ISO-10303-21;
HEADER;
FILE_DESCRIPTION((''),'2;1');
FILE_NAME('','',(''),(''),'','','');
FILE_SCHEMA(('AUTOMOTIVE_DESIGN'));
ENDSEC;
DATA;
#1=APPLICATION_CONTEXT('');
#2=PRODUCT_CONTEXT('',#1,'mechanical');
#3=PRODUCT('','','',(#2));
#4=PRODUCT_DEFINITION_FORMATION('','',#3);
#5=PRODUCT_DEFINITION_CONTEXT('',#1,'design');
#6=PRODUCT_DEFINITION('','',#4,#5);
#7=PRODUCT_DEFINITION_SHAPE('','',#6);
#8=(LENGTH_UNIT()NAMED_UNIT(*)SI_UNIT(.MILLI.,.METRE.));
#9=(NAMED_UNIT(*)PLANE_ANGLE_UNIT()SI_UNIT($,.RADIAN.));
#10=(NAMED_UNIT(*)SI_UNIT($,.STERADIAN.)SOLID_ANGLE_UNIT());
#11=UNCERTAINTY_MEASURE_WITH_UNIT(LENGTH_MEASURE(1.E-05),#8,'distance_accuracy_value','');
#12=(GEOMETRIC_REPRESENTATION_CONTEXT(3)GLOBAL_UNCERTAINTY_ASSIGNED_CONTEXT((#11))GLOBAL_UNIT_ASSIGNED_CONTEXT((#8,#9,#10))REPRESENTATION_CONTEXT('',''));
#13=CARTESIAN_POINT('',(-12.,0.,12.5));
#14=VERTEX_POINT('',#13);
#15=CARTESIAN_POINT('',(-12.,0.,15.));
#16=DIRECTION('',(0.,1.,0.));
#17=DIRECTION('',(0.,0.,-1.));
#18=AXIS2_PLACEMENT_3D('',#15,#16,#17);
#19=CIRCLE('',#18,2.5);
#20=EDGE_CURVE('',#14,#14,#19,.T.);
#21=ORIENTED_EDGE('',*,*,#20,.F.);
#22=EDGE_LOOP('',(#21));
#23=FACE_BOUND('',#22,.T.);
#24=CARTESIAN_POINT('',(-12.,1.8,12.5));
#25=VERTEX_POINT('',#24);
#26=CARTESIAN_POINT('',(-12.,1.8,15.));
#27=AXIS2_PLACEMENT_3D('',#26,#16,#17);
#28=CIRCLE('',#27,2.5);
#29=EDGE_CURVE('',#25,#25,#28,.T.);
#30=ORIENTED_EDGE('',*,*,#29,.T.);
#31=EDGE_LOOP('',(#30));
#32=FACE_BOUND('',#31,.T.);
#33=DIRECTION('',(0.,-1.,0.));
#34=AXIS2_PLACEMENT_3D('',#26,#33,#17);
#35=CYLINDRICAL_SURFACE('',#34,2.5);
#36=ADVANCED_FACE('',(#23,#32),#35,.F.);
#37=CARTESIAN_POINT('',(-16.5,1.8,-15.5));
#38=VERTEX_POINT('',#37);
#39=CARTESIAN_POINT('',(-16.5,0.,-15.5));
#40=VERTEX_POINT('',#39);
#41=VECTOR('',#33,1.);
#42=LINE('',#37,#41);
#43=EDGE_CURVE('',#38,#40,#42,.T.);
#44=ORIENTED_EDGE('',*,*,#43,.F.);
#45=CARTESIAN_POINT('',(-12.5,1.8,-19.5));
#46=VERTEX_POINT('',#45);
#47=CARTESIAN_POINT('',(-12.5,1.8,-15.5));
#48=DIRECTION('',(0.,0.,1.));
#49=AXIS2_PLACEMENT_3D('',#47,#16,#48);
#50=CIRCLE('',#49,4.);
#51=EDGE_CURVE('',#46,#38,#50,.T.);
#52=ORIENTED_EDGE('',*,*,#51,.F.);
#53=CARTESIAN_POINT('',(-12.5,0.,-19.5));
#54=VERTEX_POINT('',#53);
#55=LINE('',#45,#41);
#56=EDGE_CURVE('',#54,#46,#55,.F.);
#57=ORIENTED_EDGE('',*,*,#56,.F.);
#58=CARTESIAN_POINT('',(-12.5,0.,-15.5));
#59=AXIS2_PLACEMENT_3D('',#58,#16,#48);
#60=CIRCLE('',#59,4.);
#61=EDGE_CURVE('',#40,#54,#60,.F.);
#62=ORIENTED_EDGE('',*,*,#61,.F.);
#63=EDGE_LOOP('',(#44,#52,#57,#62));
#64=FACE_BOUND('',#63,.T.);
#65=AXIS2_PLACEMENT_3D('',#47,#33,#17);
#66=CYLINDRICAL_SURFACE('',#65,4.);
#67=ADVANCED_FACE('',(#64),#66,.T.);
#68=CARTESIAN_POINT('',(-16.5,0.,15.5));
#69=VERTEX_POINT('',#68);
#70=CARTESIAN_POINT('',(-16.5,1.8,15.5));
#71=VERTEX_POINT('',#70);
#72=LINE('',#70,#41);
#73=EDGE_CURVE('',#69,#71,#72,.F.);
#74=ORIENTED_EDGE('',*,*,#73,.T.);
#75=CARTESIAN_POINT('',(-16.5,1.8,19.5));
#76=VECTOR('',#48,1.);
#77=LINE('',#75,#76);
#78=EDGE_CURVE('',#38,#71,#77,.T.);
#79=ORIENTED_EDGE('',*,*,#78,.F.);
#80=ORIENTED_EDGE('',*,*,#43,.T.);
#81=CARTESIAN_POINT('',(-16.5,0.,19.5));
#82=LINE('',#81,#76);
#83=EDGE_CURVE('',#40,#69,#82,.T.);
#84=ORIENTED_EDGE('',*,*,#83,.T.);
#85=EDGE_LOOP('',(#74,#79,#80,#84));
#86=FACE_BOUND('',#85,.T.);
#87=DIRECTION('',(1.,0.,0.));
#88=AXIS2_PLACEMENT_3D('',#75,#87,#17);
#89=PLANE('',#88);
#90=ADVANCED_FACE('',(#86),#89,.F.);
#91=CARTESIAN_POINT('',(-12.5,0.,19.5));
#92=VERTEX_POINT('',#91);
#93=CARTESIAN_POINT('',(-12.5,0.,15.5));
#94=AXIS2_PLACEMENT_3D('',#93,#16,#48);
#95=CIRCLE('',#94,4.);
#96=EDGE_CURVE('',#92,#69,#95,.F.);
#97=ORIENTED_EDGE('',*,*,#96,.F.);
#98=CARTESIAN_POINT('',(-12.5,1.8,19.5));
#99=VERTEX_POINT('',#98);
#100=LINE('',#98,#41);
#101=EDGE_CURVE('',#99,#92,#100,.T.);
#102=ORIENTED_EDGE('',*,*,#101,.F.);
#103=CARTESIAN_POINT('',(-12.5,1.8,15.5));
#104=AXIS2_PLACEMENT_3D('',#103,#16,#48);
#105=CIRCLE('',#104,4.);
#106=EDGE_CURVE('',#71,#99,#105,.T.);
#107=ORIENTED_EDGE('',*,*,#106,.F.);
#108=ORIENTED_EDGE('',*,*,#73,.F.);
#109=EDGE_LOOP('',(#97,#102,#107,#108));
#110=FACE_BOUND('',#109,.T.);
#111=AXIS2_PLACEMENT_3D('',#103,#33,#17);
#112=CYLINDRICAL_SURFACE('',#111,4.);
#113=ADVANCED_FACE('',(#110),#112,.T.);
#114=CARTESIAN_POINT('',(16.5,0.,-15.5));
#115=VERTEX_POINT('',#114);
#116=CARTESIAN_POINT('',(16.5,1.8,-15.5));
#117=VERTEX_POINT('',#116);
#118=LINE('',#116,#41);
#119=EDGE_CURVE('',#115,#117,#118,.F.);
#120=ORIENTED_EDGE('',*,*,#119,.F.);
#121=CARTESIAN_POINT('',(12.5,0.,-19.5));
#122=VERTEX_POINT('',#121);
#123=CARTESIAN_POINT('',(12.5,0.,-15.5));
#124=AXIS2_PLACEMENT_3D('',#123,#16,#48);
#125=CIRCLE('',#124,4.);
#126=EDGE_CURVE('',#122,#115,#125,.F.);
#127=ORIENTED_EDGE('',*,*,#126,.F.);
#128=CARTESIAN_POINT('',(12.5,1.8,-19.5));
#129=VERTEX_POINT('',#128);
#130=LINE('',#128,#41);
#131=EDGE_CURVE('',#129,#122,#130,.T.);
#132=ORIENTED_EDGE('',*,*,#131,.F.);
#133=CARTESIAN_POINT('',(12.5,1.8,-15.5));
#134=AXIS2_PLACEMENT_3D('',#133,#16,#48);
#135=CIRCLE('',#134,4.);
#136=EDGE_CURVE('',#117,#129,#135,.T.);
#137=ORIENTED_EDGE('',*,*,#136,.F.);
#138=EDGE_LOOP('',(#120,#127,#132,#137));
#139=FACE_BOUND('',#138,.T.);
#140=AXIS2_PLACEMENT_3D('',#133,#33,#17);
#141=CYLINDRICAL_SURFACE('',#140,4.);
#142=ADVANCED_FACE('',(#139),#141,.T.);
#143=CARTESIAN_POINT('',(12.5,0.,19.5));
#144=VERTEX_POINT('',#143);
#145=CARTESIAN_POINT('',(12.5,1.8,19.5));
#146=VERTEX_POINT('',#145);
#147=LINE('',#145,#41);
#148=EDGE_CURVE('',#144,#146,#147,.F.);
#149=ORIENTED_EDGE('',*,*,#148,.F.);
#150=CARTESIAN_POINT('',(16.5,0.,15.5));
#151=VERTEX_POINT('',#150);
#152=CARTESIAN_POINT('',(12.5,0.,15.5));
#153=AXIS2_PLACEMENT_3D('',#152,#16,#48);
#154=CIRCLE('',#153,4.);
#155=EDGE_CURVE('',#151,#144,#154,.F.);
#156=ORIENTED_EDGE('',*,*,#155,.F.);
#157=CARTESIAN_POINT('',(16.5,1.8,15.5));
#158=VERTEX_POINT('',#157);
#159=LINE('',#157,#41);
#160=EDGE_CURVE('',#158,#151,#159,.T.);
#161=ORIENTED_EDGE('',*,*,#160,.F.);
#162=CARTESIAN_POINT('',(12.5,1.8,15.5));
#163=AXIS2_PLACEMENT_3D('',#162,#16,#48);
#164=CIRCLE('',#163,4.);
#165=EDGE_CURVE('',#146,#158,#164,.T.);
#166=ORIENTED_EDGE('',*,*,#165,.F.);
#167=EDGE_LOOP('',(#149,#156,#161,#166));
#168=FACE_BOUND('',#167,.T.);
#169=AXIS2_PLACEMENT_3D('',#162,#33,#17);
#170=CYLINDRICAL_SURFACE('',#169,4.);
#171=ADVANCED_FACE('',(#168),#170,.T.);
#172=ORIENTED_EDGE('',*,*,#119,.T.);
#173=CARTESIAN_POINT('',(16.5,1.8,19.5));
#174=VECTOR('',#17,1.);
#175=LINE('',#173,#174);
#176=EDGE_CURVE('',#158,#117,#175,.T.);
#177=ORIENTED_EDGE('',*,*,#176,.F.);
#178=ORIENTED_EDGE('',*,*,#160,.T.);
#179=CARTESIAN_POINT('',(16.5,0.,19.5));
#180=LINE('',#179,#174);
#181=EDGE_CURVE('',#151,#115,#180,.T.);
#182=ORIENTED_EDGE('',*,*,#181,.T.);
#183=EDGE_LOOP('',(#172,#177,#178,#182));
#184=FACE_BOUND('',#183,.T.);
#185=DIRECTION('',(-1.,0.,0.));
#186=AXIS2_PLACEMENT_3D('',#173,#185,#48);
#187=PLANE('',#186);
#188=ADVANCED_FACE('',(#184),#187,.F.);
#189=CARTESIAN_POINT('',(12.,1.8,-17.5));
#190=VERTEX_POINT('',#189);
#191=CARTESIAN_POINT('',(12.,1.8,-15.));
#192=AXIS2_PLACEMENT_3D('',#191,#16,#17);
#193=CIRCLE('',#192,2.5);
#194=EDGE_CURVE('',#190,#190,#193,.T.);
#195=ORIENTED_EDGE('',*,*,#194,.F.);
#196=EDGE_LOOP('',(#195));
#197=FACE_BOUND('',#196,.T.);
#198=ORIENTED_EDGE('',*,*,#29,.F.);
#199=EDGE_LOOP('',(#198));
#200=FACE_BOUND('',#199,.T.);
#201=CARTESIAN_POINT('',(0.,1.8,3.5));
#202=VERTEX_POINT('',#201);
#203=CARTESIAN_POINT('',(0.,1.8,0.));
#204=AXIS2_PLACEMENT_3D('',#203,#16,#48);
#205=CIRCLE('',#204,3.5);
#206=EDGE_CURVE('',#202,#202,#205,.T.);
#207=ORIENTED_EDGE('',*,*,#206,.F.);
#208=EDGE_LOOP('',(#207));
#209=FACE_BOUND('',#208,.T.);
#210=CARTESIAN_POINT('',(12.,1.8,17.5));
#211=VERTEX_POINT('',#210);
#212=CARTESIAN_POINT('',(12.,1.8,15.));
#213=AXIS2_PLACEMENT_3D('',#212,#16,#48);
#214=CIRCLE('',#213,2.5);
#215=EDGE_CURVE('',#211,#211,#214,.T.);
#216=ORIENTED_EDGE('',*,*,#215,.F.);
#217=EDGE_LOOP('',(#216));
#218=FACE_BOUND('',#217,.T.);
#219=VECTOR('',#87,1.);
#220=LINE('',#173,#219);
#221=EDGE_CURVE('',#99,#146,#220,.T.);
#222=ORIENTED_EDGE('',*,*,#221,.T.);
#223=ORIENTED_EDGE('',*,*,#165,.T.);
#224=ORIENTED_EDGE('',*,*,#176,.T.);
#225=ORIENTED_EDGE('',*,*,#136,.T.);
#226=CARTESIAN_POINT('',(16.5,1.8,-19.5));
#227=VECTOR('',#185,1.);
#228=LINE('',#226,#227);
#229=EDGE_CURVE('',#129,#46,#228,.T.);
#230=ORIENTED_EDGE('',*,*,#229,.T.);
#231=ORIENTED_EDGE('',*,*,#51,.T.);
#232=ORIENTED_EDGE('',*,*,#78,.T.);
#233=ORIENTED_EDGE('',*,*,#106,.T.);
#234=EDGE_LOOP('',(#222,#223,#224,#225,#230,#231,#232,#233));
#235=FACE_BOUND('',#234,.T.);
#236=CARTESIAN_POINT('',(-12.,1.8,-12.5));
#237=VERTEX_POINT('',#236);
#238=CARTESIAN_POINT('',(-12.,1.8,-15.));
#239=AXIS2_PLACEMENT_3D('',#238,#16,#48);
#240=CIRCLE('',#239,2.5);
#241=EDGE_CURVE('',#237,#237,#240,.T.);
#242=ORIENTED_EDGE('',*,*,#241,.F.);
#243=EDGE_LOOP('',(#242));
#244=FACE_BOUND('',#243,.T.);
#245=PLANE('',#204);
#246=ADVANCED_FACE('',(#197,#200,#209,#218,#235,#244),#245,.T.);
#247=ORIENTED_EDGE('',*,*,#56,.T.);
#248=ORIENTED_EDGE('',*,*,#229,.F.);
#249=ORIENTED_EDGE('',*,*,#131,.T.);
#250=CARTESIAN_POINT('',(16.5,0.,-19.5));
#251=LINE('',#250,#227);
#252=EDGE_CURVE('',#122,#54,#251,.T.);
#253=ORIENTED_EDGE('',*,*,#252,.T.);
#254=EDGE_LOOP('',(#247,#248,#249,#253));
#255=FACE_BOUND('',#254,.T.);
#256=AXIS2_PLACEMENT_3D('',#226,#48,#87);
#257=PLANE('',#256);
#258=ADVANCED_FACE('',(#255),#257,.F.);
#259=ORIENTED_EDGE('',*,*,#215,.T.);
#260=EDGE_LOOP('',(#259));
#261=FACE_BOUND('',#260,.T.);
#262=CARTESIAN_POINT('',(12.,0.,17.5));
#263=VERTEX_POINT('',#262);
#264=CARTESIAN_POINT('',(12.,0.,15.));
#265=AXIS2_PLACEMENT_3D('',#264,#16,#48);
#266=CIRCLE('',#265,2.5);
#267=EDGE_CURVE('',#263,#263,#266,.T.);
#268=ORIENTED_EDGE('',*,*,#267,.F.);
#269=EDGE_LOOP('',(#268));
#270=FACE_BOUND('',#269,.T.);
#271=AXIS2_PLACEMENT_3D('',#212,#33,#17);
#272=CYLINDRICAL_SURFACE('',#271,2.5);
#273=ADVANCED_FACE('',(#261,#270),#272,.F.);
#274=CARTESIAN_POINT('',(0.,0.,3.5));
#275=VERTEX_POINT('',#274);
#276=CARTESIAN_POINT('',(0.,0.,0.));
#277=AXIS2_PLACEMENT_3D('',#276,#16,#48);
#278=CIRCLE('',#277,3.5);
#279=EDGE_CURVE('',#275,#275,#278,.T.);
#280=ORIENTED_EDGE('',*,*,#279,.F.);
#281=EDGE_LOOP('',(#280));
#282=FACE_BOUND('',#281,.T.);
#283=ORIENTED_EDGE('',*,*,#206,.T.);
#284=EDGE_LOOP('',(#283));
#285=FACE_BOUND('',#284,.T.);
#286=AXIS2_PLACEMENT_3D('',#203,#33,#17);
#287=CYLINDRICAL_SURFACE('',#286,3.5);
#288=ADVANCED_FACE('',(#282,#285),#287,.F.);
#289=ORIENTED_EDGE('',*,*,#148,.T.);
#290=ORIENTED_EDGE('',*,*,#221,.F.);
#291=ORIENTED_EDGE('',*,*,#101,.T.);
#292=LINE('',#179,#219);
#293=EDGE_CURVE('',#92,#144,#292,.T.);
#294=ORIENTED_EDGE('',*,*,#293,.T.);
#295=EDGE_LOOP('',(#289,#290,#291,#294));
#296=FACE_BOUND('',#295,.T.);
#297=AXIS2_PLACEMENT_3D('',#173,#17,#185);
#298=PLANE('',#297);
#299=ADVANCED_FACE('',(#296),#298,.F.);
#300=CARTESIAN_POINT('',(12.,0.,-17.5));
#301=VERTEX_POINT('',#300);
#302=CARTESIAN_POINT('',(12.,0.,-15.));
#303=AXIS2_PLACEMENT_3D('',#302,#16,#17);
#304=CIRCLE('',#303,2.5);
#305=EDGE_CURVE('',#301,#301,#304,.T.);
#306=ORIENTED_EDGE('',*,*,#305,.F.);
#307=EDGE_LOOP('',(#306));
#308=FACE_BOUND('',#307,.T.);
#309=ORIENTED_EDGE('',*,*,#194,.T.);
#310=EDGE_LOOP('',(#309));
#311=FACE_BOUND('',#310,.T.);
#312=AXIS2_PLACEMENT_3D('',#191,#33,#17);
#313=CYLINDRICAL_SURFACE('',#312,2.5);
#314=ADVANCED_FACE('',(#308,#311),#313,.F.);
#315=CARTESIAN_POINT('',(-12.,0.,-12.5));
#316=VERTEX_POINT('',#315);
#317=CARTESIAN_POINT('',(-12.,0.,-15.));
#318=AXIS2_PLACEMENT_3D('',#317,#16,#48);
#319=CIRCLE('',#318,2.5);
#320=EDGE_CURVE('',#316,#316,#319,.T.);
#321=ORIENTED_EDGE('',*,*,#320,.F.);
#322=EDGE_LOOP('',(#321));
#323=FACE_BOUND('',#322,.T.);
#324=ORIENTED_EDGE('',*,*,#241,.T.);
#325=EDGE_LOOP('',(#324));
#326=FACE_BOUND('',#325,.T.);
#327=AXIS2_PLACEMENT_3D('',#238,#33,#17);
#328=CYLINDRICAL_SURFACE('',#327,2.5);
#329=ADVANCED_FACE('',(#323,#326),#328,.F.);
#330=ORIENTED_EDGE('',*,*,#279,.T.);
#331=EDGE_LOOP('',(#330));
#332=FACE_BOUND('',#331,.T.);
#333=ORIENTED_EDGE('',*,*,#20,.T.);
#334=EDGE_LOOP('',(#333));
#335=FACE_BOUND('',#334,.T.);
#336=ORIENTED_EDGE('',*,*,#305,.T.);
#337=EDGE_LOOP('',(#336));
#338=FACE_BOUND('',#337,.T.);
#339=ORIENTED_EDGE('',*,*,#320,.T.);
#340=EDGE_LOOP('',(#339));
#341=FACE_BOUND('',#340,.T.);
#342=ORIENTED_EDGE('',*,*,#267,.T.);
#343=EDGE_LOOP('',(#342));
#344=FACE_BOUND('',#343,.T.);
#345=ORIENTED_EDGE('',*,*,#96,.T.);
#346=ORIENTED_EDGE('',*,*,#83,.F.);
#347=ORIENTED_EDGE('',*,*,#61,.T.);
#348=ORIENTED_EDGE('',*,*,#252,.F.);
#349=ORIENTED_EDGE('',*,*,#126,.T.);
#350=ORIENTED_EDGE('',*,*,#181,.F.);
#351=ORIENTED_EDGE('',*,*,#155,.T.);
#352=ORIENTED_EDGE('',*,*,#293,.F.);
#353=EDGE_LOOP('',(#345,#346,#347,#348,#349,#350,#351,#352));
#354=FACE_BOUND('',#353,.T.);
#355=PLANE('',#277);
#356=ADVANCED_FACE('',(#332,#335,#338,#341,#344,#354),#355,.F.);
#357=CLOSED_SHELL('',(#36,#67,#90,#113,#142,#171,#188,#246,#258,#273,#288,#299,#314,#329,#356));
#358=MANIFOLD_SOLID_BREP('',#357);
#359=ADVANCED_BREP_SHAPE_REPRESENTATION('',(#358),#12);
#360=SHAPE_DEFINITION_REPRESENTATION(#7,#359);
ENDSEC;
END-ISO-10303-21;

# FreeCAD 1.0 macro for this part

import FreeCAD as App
import Part
import Sketcher
from FreeCAD import Vector


def edges_at(feature, points):
    """Names of the edges that pass closest to the given points."""
    edges = feature.Shape.Edges
    near = lambda p: min(range(len(edges)), key=lambda i: edges[i].distToShape(Part.Vertex(*p))[0])
    return sorted({f"Edge{near(p) + 1}" for p in points})


def add_polygon(sketch, points):
    """Adds a closed chain of lines whose ends are joined by coincident constraints."""
    first, n = sketch.GeometryCount, len(points)
    for a, b in zip(points, points[1:] + points[:1]):
        sketch.addGeometry(Part.LineSegment(App.Vector(*a, 0), App.Vector(*b, 0)), False)
    for i in range(n):
        sketch.addConstraint(Sketcher.Constraint("Coincident", first + i, 2, first + (i + 1) % n, 1))

doc = App.newDocument("Part")
params = doc.addObject("Spreadsheet::Sheet", "Params")
for row, (alias, value) in enumerate([
    ("sketch1_diameter", "5 mm"),
    ("sketch1_diameter2", "7 mm"),
    ("sketch1_width", "33 mm"),
    ("sketch1_height", "39 mm"),
    ("pad1_length", "1.8 mm"),
    ("fillet_radius", "4 mm"),
    ("fillet2_radius", "4 mm"),
    ("fillet3_radius", "4 mm"),
    ("fillet4_radius", "4 mm"),
], start=1):
    params.set(f"A{row}", alias)
    params.set(f"B{row}", "=" + value)
    params.setAlias(f"B{row}", alias)

body = doc.addObject("PartDesign::Body", "Body")

sketch1 = doc.addObject("Sketcher::SketchObject", "Sketch")
body.addObject(sketch1)
sketch1.AttachmentSupport = (doc.XZ_Plane, [""])
sketch1.MapMode = "FlatFace"
add_polygon(sketch1, [(-16.5, -19.5), (-16.5, 19.5), (16.5, 19.5), (16.5, -19.5)])
sketch1.addGeometry(Part.Circle(Vector(-12, 15, 0), Vector(0, 0, 1), 2.5), False)
sketch1.addGeometry(Part.Circle(Vector(12, 15, 0), Vector(0, 0, 1), 2.5), False)
sketch1.addGeometry(Part.Circle(Vector(-12, -15, 0), Vector(0, 0, 1), 2.5), False)
sketch1.addGeometry(Part.Circle(Vector(0, 0, 0), Vector(0, 0, 1), 3.5), False)
sketch1.addGeometry(Part.Circle(Vector(12, -15, 0), Vector(0, 0, 1), 2.5), False)
sketch1.addConstraint([
    Sketcher.Constraint("Vertical", 0),
    Sketcher.Constraint("Horizontal", 1),
    Sketcher.Constraint("Vertical", 2),
    Sketcher.Constraint("Horizontal", 3),
    Sketcher.Constraint("Coincident", 7, 3, -1, 1),
    Sketcher.Constraint("Equal", 4, 5),
    Sketcher.Constraint("Equal", 5, 6),
    Sketcher.Constraint("Equal", 6, 8),
    Sketcher.Constraint("Symmetric", 5, 3, 6, 3, -1, 1),
    Sketcher.Constraint("Symmetric", 4, 3, 8, 3, -1, 1),
    Sketcher.Constraint("Symmetric", 0, 2, 2, 2, -1, 1),
    Sketcher.Constraint("Symmetric", 4, 3, 5, 3, -2),
    Sketcher.Constraint("Diameter", 4, 5.0),
    Sketcher.Constraint("Diameter", 7, 7.0),
    Sketcher.Constraint("DistanceX", 1, 1, 1, 2, 33.0),
    Sketcher.Constraint("DistanceY", 0, 1, 0, 2, 39.0),
    Sketcher.Constraint("DistanceX", 4, 3, -1, 1, 12.0),
    Sketcher.Constraint("DistanceY", -1, 1, 4, 3, 15.0),
])
sketch1.setExpression("Constraints[16]", "Params.sketch1_diameter")
sketch1.setExpression("Constraints[17]", "Params.sketch1_diameter2")
sketch1.setExpression("Constraints[18]", "Params.sketch1_width")
sketch1.setExpression("Constraints[19]", "Params.sketch1_height")
pad1 = doc.addObject("PartDesign::Pad", "Pad")
body.addObject(pad1)
pad1.Profile = sketch1
pad1.setExpression("Length", "Params.pad1_length")
pad1.Reversed = True
doc.recompute()

fillet = doc.addObject("PartDesign::Fillet", "Fillet")
body.addObject(fillet)
fillet.Base = (pad1, edges_at(pad1, [(-16.5, 0.9, -19.5)]))
fillet.setExpression("Radius", "Params.fillet_radius")
doc.recompute()

fillet2 = doc.addObject("PartDesign::Fillet", "Fillet001")
body.addObject(fillet2)
fillet2.Base = (fillet, edges_at(fillet, [(16.5, 0.9, -19.5)]))
fillet2.setExpression("Radius", "Params.fillet2_radius")
doc.recompute()

fillet3 = doc.addObject("PartDesign::Fillet", "Fillet002")
body.addObject(fillet3)
fillet3.Base = (fillet2, edges_at(fillet2, [(16.5, 0.9, 19.5)]))
fillet3.setExpression("Radius", "Params.fillet3_radius")
doc.recompute()

fillet4 = doc.addObject("PartDesign::Fillet", "Fillet003")
body.addObject(fillet4)
fillet4.Base = (fillet3, edges_at(fillet3, [(-16.5, 0.9, 19.5)]))
fillet4.setExpression("Radius", "Params.fillet4_radius")

doc.recompute()
